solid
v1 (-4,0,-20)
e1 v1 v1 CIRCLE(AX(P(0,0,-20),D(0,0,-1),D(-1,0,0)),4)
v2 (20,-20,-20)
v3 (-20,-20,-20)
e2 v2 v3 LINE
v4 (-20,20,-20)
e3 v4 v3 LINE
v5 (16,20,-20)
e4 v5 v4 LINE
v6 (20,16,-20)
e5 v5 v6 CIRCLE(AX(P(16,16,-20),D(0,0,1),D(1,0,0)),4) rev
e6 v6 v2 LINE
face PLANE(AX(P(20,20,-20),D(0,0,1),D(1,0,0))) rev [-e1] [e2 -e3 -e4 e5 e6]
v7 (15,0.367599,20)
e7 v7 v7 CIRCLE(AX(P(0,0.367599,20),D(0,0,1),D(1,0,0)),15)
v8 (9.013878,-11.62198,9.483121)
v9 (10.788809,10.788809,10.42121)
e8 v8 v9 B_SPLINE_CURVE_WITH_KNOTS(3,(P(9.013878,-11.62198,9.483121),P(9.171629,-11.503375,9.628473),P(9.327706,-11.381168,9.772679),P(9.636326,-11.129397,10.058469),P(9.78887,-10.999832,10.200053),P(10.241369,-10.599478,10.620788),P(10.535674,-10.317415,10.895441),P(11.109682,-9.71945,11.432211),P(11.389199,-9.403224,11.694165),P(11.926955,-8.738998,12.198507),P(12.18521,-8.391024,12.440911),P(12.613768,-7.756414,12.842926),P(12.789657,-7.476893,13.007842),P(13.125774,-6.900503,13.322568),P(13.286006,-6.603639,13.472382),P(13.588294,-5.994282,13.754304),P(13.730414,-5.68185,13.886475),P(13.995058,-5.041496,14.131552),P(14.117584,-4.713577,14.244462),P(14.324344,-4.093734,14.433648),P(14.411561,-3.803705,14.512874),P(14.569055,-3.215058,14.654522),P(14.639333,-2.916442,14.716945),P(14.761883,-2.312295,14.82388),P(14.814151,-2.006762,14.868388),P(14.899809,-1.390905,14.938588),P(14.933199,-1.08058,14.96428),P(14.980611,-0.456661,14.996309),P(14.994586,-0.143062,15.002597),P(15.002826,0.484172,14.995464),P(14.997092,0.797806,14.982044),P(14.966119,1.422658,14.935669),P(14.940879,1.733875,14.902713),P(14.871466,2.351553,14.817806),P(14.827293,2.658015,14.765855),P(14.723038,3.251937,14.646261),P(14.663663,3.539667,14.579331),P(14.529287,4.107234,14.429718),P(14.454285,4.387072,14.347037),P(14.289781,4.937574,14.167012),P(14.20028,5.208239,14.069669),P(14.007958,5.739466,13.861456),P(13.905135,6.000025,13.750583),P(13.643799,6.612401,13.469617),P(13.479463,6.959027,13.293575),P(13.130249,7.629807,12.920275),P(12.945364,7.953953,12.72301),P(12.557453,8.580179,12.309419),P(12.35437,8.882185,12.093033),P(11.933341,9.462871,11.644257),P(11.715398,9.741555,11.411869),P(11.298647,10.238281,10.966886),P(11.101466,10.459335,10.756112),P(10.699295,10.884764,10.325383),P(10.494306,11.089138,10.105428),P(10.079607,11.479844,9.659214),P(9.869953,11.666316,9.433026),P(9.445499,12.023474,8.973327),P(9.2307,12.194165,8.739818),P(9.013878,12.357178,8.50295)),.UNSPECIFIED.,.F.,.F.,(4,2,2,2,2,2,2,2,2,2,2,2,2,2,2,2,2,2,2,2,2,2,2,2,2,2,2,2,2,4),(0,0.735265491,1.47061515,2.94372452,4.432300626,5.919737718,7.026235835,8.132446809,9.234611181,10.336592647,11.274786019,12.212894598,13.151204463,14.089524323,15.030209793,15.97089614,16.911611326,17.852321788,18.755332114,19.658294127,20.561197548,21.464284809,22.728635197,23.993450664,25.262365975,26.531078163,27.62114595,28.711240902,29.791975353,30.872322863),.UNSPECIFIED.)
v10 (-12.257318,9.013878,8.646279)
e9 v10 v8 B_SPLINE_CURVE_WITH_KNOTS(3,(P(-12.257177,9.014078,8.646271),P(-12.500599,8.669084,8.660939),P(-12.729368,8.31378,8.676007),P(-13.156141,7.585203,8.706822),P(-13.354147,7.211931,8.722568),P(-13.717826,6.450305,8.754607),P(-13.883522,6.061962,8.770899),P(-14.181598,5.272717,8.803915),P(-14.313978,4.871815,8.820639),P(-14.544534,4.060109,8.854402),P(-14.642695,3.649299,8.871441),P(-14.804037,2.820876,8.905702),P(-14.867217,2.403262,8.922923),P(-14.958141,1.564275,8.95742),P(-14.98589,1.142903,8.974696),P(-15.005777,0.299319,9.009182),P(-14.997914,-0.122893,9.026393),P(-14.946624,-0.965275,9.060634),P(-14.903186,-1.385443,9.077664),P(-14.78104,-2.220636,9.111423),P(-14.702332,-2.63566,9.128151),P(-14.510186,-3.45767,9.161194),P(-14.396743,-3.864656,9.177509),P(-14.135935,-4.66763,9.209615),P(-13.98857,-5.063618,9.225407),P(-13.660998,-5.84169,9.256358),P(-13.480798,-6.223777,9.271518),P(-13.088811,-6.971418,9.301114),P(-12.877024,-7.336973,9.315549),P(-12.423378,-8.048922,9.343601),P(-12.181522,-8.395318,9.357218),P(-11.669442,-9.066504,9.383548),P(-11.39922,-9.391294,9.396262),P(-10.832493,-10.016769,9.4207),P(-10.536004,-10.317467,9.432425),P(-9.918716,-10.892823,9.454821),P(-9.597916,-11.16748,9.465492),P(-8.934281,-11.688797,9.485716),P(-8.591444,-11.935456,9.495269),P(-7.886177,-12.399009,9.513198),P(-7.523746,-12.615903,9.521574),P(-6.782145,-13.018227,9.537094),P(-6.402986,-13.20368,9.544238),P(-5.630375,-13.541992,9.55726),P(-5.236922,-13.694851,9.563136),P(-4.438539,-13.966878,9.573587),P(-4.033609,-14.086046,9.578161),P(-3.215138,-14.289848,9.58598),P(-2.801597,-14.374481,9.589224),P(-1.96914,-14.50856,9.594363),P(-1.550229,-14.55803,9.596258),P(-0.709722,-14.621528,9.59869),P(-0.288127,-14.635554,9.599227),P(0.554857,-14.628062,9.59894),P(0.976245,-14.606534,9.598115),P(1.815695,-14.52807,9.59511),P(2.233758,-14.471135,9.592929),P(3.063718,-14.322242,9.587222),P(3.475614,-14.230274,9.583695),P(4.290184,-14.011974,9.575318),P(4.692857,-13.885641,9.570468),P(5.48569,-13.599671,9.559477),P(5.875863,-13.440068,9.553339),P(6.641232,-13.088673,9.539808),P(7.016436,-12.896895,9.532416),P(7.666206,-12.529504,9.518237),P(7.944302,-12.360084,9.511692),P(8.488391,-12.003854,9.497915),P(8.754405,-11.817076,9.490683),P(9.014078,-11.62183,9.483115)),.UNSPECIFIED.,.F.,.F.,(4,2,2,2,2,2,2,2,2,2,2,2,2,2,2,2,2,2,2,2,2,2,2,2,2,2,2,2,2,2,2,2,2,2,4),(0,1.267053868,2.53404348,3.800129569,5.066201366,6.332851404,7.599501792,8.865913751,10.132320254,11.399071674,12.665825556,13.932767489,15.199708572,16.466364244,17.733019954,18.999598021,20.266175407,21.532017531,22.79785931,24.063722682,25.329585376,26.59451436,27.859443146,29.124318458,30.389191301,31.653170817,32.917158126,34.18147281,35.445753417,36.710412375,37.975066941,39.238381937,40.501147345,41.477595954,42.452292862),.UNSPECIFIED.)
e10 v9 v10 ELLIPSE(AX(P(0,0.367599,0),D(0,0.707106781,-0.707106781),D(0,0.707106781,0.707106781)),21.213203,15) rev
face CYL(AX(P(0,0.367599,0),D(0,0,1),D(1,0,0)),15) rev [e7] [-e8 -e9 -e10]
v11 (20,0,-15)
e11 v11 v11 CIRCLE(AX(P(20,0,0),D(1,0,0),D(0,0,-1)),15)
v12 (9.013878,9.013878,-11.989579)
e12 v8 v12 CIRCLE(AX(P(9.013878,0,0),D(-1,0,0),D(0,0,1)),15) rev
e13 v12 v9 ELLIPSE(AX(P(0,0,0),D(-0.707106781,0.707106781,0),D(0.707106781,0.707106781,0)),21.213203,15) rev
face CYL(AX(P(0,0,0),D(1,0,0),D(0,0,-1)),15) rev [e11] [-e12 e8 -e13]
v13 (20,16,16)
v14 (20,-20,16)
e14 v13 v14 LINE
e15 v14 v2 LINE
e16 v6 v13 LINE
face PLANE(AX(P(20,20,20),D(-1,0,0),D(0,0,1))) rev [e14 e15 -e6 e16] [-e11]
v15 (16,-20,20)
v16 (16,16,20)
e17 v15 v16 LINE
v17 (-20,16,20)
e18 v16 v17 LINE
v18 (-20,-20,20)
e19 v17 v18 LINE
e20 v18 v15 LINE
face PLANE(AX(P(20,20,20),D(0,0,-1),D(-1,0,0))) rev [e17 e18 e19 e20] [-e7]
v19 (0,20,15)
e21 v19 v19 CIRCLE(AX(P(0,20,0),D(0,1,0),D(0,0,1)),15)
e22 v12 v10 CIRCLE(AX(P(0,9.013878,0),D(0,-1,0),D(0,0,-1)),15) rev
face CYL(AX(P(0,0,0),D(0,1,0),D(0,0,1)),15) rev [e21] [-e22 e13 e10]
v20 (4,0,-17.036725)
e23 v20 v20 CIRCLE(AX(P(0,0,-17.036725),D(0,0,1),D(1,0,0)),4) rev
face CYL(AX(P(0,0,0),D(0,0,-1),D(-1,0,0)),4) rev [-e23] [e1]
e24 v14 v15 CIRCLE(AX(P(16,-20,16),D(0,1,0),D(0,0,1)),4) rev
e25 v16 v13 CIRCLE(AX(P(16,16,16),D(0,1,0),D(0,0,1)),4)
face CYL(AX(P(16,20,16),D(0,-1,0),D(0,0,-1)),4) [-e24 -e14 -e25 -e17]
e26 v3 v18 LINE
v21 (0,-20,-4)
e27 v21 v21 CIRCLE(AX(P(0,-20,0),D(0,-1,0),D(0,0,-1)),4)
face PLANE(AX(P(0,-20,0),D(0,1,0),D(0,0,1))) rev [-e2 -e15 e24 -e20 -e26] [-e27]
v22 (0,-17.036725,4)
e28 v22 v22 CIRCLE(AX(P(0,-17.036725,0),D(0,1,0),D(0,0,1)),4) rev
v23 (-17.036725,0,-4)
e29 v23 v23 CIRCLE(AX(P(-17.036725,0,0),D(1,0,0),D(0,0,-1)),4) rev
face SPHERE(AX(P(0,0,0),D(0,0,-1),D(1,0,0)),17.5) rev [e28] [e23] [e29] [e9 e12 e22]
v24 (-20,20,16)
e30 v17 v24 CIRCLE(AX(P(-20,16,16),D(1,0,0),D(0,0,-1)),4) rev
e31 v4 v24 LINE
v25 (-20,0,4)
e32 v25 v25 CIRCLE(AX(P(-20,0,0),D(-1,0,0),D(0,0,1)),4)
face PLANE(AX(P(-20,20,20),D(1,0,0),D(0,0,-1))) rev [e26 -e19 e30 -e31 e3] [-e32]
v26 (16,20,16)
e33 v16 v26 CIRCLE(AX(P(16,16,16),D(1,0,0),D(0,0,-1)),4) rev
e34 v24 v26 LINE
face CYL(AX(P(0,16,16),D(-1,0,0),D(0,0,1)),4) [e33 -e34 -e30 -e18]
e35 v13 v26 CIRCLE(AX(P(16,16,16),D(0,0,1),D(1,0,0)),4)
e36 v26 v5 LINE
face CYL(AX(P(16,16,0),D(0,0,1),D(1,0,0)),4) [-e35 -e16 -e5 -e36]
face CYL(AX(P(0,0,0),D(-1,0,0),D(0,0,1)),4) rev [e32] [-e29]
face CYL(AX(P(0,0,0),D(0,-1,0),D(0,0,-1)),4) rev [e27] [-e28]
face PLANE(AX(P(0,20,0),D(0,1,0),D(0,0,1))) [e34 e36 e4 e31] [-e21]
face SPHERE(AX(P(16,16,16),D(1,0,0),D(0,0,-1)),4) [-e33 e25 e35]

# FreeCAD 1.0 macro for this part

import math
import FreeCAD as App
import Part
import Sketcher

V = App.Vector


def edges_at(feature, points):
    """Names of the edges that pass closest to the given points."""
    edges = feature.Shape.Edges
    near = lambda p: min(range(len(edges)), key=lambda i: edges[i].distToShape(Part.Vertex(*p))[0])
    return sorted({f"Edge{near(p) + 1}" for p in points})


def add_polygon(sketch, points):
    """Adds a closed chain of lines whose ends are joined by coincident constraints."""
    first, n = sketch.GeometryCount, len(points)
    for a, b in zip(points, points[1:] + points[:1]):
        sketch.addGeometry(Part.LineSegment(App.Vector(*a, 0), App.Vector(*b, 0)), False)
    for i in range(n):
        sketch.addConstraint(Sketcher.Constraint("Coincident", first + i, 2, first + (i + 1) % n, 1))

doc = App.newDocument("Part")
body = doc.addObject("PartDesign::Body", "Body")

# Sketch on XZ plane
sketch1 = body.newObject("Sketcher::SketchObject", "Sketch")
sketch1.AttachmentSupport = (doc.getObject("XZ_Plane"), [""])
sketch1.MapMode = "FlatFace"
add_polygon(sketch1, [(-20, -20), (-20, 20), (20, 20), (20, -20)])  # lines 0-3
sketch1.addConstraint(Sketcher.Constraint("Vertical", 0))
sketch1.addConstraint(Sketcher.Constraint("Horizontal", 1))
sketch1.addConstraint(Sketcher.Constraint("Vertical", 2))
sketch1.addConstraint(Sketcher.Constraint("Horizontal", 3))
sketch1.addConstraint(Sketcher.Constraint("Symmetric", 0, 2, 2, 2, -1, 1))
sketch1.addConstraint(Sketcher.Constraint("Equal", 3, 0))
sketch1.addConstraint(Sketcher.Constraint("DistanceX", 1, 1, 1, 2, 40.0))
pad1 = body.newObject("PartDesign::Pad", "Pad")
pad1.Profile = sketch1
pad1.Length = 40
pad1.Midplane = True
doc.recompute()

fillet = body.newObject("PartDesign::Fillet", "Fillet")
fillet.Base = (pad1, edges_at(pad1, [(20, 20, 0), (20, 0, 20), (0, 20, 20)]))
fillet.Radius = 4

# Sketch on XZ plane
sketch2 = body.newObject("Sketcher::SketchObject", "Sketch001")
sketch2.AttachmentSupport = (doc.getObject("XZ_Plane"), [""])
sketch2.MapMode = "FlatFace"
sketch2.addGeometry(Part.LineSegment(V(0, 18, 0), V(0, -18, 0)), False)
sketch2.addGeometry(Part.ArcOfCircle(Part.Circle(V(0, 0, 0), V(0, 0, 1), 18), math.radians(90), math.radians(270)), False)
sketch2.addConstraint(Sketcher.Constraint("Coincident", 0, 1, 1, 1))
sketch2.addConstraint(Sketcher.Constraint("Coincident", 1, 2, 0, 2))
sketch2.addConstraint(Sketcher.Constraint("Vertical", 0))
sketch2.addConstraint(Sketcher.Constraint("Coincident", 1, 3, -1, 1))
sketch2.addConstraint(Sketcher.Constraint("PointOnObject", 0, 1, -2))
sketch2.addConstraint(Sketcher.Constraint("Radius", 1, 17.5))
groove = body.newObject("PartDesign::Groove", "Groove")
groove.Profile = sketch2
groove.ReferenceAxis = (sketch2, ["V_Axis"])
groove.Angle = 360

# Sketch on XZ plane
sketch3 = body.newObject("Sketcher::SketchObject", "Sketch002")
sketch3.AttachmentSupport = (doc.getObject("XZ_Plane"), [""])
sketch3.MapMode = "FlatFace"
sketch3.AttachmentOffset = App.Placement(V(0, 0, -20), App.Rotation())
sketch3.addGeometry(Part.Circle(V(0, 0, 0), V(0, 0, 1), 15), False)
sketch3.addConstraint(Sketcher.Constraint("Coincident", 0, 3, -1, 1))
sketch3.addConstraint(Sketcher.Constraint("Diameter", 0, 30.0))
pocket1 = body.newObject("PartDesign::Pocket", "Pocket")
pocket1.Profile = sketch3
pocket1.Length = 20
pocket1.Reversed = True

# Sketch on YZ plane
sketch4 = body.newObject("Sketcher::SketchObject", "Sketch003")
sketch4.AttachmentSupport = (doc.getObject("YZ_Plane"), [""])
sketch4.MapMode = "FlatFace"
sketch4.AttachmentOffset = App.Placement(V(0, 0, 20), App.Rotation())
sketch4.addGeometry(Part.Circle(V(0, 0, 0), V(0, 0, 1), 15), False)
sketch4.addConstraint(Sketcher.Constraint("Coincident", 0, 3, -1, 1))
sketch4.addConstraint(Sketcher.Constraint("Diameter", 0, 30.0))
pocket2 = body.newObject("PartDesign::Pocket", "Pocket001")
pocket2.Profile = sketch4
pocket2.Length = 20

# Sketch on XY plane
sketch5 = body.newObject("Sketcher::SketchObject", "Sketch004")
sketch5.AttachmentSupport = (doc.getObject("XY_Plane"), [""])
sketch5.MapMode = "FlatFace"
sketch5.AttachmentOffset = App.Placement(V(0, 0, 20), App.Rotation())
sketch5.addGeometry(Part.Circle(V(0, 0, 0), V(0, 0, 1), 15), False)
sketch5.addConstraint(Sketcher.Constraint("PointOnObject", 0, 3, -2))
sketch5.addConstraint(Sketcher.Constraint("Diameter", 0, 30.0))
sketch5.addConstraint(Sketcher.Constraint("DistanceY", -1, 1, 0, 3, 0.367599))
pocket3 = body.newObject("PartDesign::Pocket", "Pocket002")
pocket3.Profile = sketch5
pocket3.Length = 20

# Sketch on XY plane
sketch6 = body.newObject("Sketcher::SketchObject", "Sketch005")
sketch6.AttachmentSupport = (doc.getObject("XY_Plane"), [""])
sketch6.MapMode = "FlatFace"
sketch6.AttachmentOffset = App.Placement(V(0, 0, -20), App.Rotation())
sketch6.addGeometry(Part.Circle(V(0, 0, 0), V(0, 0, 1), 4), False)
sketch6.addConstraint(Sketcher.Constraint("Coincident", 0, 3, -1, 1))
sketch6.addConstraint(Sketcher.Constraint("Diameter", 0, 8.0))
pocket4 = body.newObject("PartDesign::Pocket", "Pocket003")
pocket4.Profile = sketch6
pocket4.Length = 20
pocket4.Reversed = True

# Sketch on XZ plane
sketch7 = body.newObject("Sketcher::SketchObject", "Sketch006")
sketch7.AttachmentSupport = (doc.getObject("XZ_Plane"), [""])
sketch7.MapMode = "FlatFace"
sketch7.AttachmentOffset = App.Placement(V(0, 0, 20), App.Rotation())
sketch7.addGeometry(Part.Circle(V(0, 0, 0), V(0, 0, 1), 4), False)
sketch7.addConstraint(Sketcher.Constraint("Coincident", 0, 3, -1, 1))
sketch7.addConstraint(Sketcher.Constraint("Diameter", 0, 8.0))
pocket5 = body.newObject("PartDesign::Pocket", "Pocket004")
pocket5.Profile = sketch7
pocket5.Length = 20

# Sketch on YZ plane
sketch8 = body.newObject("Sketcher::SketchObject", "Sketch007")
sketch8.AttachmentSupport = (doc.getObject("YZ_Plane"), [""])
sketch8.MapMode = "FlatFace"
sketch8.AttachmentOffset = App.Placement(V(0, 0, -20), App.Rotation())
sketch8.addGeometry(Part.Circle(V(0, 0, 0), V(0, 0, 1), 4), False)
sketch8.addConstraint(Sketcher.Constraint("Coincident", 0, 3, -1, 1))
sketch8.addConstraint(Sketcher.Constraint("Diameter", 0, 8.0))
pocket6 = body.newObject("PartDesign::Pocket", "Pocket005")
pocket6.Profile = sketch8
pocket6.Length = 20
pocket6.Reversed = True

doc.recompute()
